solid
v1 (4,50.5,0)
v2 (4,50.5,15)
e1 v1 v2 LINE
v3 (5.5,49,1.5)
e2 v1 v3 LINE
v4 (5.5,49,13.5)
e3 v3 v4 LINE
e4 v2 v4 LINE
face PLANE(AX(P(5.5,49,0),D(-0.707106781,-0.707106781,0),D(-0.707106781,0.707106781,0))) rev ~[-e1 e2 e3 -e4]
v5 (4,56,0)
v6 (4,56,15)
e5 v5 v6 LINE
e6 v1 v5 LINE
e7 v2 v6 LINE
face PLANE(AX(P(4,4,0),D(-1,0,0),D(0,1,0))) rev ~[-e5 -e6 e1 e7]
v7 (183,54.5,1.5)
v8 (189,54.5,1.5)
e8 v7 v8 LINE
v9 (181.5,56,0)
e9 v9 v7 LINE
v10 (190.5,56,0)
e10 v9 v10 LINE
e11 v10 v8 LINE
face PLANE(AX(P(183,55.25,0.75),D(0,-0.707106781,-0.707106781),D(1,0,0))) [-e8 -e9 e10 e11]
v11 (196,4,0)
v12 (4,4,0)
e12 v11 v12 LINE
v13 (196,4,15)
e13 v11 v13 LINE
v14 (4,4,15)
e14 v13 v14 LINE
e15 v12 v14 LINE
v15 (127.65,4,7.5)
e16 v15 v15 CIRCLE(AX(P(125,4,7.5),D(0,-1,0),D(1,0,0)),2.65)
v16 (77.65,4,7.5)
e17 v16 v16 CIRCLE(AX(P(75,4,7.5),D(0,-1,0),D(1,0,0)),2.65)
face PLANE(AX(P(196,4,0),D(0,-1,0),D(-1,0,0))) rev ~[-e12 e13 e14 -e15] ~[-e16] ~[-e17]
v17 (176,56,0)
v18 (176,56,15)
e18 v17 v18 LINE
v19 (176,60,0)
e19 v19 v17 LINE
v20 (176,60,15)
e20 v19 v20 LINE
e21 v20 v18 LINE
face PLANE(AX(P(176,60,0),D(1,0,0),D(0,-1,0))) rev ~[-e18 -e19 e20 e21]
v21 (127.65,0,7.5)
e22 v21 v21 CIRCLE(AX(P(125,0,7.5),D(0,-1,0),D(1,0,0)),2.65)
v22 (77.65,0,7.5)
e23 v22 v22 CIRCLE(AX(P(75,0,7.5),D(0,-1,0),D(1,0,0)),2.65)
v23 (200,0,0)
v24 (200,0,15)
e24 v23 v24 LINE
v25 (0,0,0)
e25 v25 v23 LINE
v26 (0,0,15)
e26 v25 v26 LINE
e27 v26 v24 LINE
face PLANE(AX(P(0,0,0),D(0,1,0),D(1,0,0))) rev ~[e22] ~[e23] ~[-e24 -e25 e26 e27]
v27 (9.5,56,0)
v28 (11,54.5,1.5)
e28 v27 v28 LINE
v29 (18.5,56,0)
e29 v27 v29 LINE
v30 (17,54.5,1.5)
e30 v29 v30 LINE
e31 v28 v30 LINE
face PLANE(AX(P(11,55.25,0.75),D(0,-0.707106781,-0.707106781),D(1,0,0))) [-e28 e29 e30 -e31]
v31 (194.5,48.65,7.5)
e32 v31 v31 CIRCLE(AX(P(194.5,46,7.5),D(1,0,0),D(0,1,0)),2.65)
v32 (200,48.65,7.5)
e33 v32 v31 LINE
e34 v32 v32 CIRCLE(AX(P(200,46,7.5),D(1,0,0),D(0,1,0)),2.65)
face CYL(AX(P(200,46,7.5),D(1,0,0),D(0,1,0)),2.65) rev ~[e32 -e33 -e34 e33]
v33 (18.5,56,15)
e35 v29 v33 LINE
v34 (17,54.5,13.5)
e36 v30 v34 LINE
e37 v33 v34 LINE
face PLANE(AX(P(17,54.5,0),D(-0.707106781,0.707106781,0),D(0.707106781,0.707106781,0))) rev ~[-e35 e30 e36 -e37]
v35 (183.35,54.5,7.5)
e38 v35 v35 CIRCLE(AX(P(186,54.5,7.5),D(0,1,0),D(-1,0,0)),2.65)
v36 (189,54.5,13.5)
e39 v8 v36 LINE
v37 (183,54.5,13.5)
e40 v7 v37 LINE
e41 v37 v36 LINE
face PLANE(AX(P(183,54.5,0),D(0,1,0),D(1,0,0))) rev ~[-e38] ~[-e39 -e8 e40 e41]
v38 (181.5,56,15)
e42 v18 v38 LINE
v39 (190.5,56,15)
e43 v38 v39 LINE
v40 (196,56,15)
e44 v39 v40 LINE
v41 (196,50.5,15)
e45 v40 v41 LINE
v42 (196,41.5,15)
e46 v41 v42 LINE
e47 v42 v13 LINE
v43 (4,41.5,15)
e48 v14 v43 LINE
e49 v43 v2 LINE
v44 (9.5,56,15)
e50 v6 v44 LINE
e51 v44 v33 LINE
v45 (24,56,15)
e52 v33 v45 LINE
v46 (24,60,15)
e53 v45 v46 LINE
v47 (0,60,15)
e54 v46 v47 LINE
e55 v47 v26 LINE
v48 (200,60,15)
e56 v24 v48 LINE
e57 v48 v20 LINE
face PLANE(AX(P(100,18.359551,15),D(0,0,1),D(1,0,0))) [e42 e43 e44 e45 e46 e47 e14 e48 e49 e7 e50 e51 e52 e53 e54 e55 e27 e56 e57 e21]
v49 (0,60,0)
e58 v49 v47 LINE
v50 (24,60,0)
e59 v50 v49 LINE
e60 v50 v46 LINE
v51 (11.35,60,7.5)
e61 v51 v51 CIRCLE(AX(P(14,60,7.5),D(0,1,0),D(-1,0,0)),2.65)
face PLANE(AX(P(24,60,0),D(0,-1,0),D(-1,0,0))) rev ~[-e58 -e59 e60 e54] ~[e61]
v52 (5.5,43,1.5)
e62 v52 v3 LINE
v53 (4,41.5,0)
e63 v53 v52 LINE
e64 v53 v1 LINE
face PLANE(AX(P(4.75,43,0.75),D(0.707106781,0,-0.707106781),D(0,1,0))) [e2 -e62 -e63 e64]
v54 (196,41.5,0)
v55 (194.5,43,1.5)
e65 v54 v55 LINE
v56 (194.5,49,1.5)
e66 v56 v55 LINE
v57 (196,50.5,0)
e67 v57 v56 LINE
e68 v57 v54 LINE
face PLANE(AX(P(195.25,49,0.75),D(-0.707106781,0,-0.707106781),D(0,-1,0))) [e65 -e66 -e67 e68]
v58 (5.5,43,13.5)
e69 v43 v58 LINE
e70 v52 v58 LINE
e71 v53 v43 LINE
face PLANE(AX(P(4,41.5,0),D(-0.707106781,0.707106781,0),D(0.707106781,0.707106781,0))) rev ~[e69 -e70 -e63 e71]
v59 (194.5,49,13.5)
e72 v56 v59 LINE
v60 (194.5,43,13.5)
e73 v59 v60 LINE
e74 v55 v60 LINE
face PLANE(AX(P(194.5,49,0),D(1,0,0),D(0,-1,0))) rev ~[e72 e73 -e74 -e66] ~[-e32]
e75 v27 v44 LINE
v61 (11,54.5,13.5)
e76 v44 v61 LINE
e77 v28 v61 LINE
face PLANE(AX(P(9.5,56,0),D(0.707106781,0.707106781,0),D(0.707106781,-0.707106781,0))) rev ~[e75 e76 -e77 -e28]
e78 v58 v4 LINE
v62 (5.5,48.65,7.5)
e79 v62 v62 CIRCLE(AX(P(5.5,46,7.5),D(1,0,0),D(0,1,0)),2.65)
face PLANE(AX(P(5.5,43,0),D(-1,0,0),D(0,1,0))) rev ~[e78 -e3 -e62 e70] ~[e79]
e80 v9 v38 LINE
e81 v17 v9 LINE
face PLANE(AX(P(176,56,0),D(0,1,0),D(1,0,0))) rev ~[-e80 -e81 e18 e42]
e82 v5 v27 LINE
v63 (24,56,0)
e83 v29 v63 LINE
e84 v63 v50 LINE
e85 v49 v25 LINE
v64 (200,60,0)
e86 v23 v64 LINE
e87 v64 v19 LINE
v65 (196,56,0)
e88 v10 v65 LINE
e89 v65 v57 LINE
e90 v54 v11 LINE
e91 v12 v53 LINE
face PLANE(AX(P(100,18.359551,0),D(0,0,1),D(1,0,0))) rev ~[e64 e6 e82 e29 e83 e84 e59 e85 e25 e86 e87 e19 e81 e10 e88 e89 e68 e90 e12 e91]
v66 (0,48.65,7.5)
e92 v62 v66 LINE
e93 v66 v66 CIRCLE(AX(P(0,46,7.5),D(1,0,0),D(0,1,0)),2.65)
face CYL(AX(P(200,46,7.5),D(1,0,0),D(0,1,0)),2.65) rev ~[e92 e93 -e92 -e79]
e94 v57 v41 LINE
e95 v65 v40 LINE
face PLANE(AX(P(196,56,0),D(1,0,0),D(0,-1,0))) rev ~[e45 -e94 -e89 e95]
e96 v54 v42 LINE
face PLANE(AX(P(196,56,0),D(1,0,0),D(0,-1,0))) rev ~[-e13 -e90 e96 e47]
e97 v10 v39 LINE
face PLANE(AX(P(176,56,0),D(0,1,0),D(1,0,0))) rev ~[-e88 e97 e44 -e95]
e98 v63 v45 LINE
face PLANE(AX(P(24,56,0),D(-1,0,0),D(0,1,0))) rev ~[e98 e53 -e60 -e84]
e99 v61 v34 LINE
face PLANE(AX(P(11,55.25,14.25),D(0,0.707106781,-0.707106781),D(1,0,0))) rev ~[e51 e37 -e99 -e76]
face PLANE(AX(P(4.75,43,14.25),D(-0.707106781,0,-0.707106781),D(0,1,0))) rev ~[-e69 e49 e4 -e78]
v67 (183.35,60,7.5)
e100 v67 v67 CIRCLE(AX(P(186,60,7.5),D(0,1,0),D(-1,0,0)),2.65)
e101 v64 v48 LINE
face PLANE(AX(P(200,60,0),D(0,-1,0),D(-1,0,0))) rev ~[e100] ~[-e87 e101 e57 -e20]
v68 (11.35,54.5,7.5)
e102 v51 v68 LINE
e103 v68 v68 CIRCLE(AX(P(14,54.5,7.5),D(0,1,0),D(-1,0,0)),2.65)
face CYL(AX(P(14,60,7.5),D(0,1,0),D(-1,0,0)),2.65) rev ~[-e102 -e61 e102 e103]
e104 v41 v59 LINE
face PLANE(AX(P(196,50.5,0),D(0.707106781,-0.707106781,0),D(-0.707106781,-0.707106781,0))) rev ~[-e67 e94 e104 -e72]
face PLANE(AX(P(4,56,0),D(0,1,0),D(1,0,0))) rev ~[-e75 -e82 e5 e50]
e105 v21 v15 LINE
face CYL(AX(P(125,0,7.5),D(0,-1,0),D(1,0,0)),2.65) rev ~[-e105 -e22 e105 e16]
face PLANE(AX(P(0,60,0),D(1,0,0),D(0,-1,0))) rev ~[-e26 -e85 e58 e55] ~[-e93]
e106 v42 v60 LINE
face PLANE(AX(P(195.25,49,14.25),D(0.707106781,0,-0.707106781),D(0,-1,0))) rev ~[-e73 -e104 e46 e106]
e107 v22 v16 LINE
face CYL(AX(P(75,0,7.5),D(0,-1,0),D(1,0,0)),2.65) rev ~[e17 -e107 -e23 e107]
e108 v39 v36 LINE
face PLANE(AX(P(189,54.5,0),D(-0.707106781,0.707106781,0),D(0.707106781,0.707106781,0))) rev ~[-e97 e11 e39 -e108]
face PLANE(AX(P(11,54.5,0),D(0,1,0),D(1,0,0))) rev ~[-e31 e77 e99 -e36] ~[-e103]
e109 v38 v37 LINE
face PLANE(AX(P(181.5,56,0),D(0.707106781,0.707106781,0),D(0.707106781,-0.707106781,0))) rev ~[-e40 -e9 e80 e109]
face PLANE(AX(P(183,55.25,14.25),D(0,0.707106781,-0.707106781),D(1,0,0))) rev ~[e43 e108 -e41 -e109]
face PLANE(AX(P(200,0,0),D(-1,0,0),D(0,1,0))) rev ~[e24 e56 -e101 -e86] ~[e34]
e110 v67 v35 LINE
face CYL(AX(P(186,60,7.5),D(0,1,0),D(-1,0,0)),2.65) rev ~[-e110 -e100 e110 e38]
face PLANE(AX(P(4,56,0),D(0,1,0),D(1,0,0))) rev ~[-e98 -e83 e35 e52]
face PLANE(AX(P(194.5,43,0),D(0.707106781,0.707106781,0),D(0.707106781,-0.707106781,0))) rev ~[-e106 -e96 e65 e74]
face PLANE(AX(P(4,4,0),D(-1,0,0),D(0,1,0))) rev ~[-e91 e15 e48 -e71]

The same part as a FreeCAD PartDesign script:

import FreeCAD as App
import Part
import Sketcher
Q = App.Units.Quantity


def edges_at(feature, points):
    """Names of the edges that pass closest to the given points."""
    edges = feature.Shape.Edges
    near = lambda p: min(range(len(edges)), key=lambda i: edges[i].distToShape(Part.Vertex(*p))[0])
    return sorted({f"Edge{near(p) + 1}" for p in points})


def add_polygon(sketch, points):
    """Adds a closed chain of lines whose ends are joined by coincident constraints."""
    first, n = sketch.GeometryCount, len(points)
    for a, b in zip(points, points[1:] + points[:1]):
        sketch.addGeometry(Part.LineSegment(App.Vector(*a, 0), App.Vector(*b, 0)), False)
    for i in range(n):
        sketch.addConstraint(Sketcher.Constraint("Coincident", first + i, 2, first + (i + 1) % n, 1))

doc = App.newDocument("Part")
body = doc.addObject("PartDesign::Body", "Body")

# Sketch on XY plane
sketch1 = body.newObject("Sketcher::SketchObject", "Sketch")
sketch1.AttachmentSupport = (doc.getObject("XY_Plane"), [""])
sketch1.MapMode = "FlatFace"
add_polygon(sketch1, [(0, 60), (0, 0), (200, 0), (200, 60), (176, 60), (176, 56), (196, 56), (196, 4), (4, 4), (4, 56), (24, 56), (24, 60)])  # lines 0-11
sketch1.addConstraint([
    Sketcher.Constraint("Vertical", 0),
    Sketcher.Constraint("Horizontal", 1),
    Sketcher.Constraint("Vertical", 2),
    Sketcher.Constraint("Horizontal", 3),
    Sketcher.Constraint("Vertical", 4),
    Sketcher.Constraint("Horizontal", 5),
    Sketcher.Constraint("Vertical", 6),
    Sketcher.Constraint("Horizontal", 7),
    Sketcher.Constraint("Vertical", 8),
    Sketcher.Constraint("Horizontal", 9),
    Sketcher.Constraint("Vertical", 10),
    Sketcher.Constraint("Horizontal", 11),
    Sketcher.Constraint("Coincident", 0, 2, -1, 1),
    Sketcher.Constraint("Horizontal", 5, 2, 8, 2),
    Sketcher.Constraint("Horizontal", 3, 2, 10, 2),
    Sketcher.Constraint("Equal", 5, 9),
    Sketcher.Constraint("Equal", 3, 11),
    Sketcher.Constraint("DistanceX", 1, 1, 1, 2, Q("200 mm")),
    Sketcher.Constraint("DistanceX", 3, 2, 3, 1, Q("24 mm")),
    Sketcher.Constraint("DistanceX", 5, 1, 5, 2, Q("20 mm")),
    Sketcher.Constraint("DistanceY", 0, 2, 0, 1, Q("60 mm")),
    Sketcher.Constraint("DistanceY", 4, 2, 4, 1, Q("4 mm")),
    Sketcher.Constraint("DistanceY", 6, 2, 6, 1, Q("52 mm")),
])
pad1 = body.newObject("PartDesign::Pad", "Pad")
pad1.Profile = sketch1
pad1.Length = 15

# Sketch on XY plane
sketch2 = body.newObject("Sketcher::SketchObject", "Sketch001")
sketch2.AttachmentSupport = (doc.getObject("XY_Plane"), [""])
sketch2.MapMode = "FlatFace"
add_polygon(sketch2, [(17, 54.5), (18.5, 56), (9.5, 56), (11, 54.5)])  # lines 0-3
add_polygon(sketch2, [(5.5, 49), (4, 50.5), (4, 41.5), (5.5, 43)])  # lines 4-7
add_polygon(sketch2, [(196, 41.5), (196, 50.5), (194.5, 49), (194.5, 43)])  # lines 8-11
add_polygon(sketch2, [(189, 54.5), (190.5, 56), (181.5, 56), (183, 54.5)])  # lines 12-15
sketch2.addConstraint([
    Sketcher.Constraint("Horizontal", 1),
    Sketcher.Constraint("Horizontal", 3),
    Sketcher.Constraint("Vertical", 5),
    Sketcher.Constraint("Vertical", 7),
    Sketcher.Constraint("Vertical", 8),
    Sketcher.Constraint("Vertical", 10),
    Sketcher.Constraint("Horizontal", 13),
    Sketcher.Constraint("Horizontal", 15),
    Sketcher.Constraint("Perpendicular", 0, 2),
    Sketcher.Constraint("Parallel", 2, 4),
    Sketcher.Constraint("Perpendicular", 4, 6),
    Sketcher.Constraint("Parallel", 6, 9),
    Sketcher.Constraint("Perpendicular", 9, 11),
    Sketcher.Constraint("Perpendicular", 11, 12),
    Sketcher.Constraint("Perpendicular", 12, 14),
    Sketcher.Constraint("Horizontal", 4, 2, 8, 2),
    Sketcher.Constraint("Horizontal", 7, 2, 9, 2),
    Sketcher.Constraint("Horizontal", 6, 2, 10, 2),
    Sketcher.Constraint("Horizontal", 5, 2, 11, 2),
    Sketcher.Constraint("Horizontal", 1, 2, 12, 2),
    Sketcher.Constraint("Horizontal", 3, 2, 14, 2),
    Sketcher.Constraint("Equal", 1, 13),
    Sketcher.Constraint("Equal", 13, 5),
    Sketcher.Constraint("Equal", 15, 7),
    Sketcher.Constraint("DistanceX", 1, 2, 1, 1, Q("9 mm")),
    Sketcher.Constraint("DistanceX", 3, 1, 3, 2, Q("6 mm")),
    Sketcher.Constraint("DistanceY", -1, 1, 0, 2, Q("56 mm")),
    Sketcher.Constraint("DistanceX", -1, 1, 2, 2, Q("11 mm")),
    Sketcher.Constraint("DistanceX", -1, 1, 4, 2, Q("4 mm")),
    Sketcher.Constraint("DistanceY", -1, 1, 6, 2, Q("43 mm")),
    Sketcher.Constraint("DistanceX", -1, 1, 8, 2, Q("196 mm")),
    Sketcher.Constraint("DistanceX", -1, 1, 14, 2, Q("183 mm")),
])
pad2 = body.newObject("PartDesign::Pad", "Pad001")
pad2.Profile = sketch2
pad2.Length = 15
doc.recompute()

chamfer = body.newObject("PartDesign::Chamfer", "Chamfer")
chamfer.Base = (pad2, edges_at(pad2, [
    (5.5, 46, 15),
    (5.5, 46, 0),
    (14, 54.5, 0),
    (14, 54.5, 15),
    (186, 54.5, 15),
    (194.5, 46, 15),
    (194.5, 46, 0),
    (186, 54.5, 0),
]))
chamfer.Size = 1.5

# Sketch on XZ plane
sketch3 = body.newObject("Sketcher::SketchObject", "Sketch002")
sketch3.AttachmentSupport = (doc.getObject("XZ_Plane"), [""])
sketch3.MapMode = "FlatFace"
sketch3.addGeometry([
    Part.Circle(App.Vector(75, 7.5, 0), App.Vector(0, 0, 1), 2.65),
    Part.Circle(App.Vector(125, 7.5, 0), App.Vector(0, 0, 1), 2.65),
], False)
sketch3.addConstraint([
    Sketcher.Constraint("Equal", 0, 1),
    Sketcher.Constraint("Horizontal", 0, 3, 1, 3),
    Sketcher.Constraint("Diameter", 0, Q("5.3 mm")),
    Sketcher.Constraint("DistanceX", -1, 1, 0, 3, Q("75 mm")),
    Sketcher.Constraint("DistanceX", -1, 1, 1, 3, Q("125 mm")),
    Sketcher.Constraint("DistanceY", -1, 1, 0, 3, Q("7.5 mm")),
])
pocket1 = body.newObject("PartDesign::Pocket", "Pocket")
pocket1.Profile = sketch3
pocket1.Type = "ThroughAll"

# Sketch on YZ plane
sketch4 = body.newObject("Sketcher::SketchObject", "Sketch003")
sketch4.AttachmentSupport = (doc.getObject("YZ_Plane"), [""])
sketch4.MapMode = "FlatFace"
sketch4.AttachmentOffset = App.Placement(App.Vector(0, 0, 200), App.Rotation())
sketch4.addGeometry(Part.Circle(App.Vector(46, 7.5, 0), App.Vector(0, 0, 1), 2.65), False)
sketch4.addConstraint([
    Sketcher.Constraint("Diameter", 0, Q("5.3 mm")),
    Sketcher.Constraint("DistanceX", -1, 1, 0, 3, Q("46 mm")),
    Sketcher.Constraint("DistanceY", -1, 1, 0, 3, Q("7.5 mm")),
])
pocket2 = body.newObject("PartDesign::Pocket", "Pocket001")
pocket2.Profile = sketch4
pocket2.Type = "ThroughAll"

# Sketch on XZ plane
sketch5 = body.newObject("Sketcher::SketchObject", "Sketch004")
sketch5.AttachmentSupport = (doc.getObject("XZ_Plane"), [""])
sketch5.MapMode = "FlatFace"
sketch5.AttachmentOffset = App.Placement(App.Vector(0, 0, -60), App.Rotation())
sketch5.addGeometry([
    Part.Circle(App.Vector(186, 7.5, 0), App.Vector(0, 0, 1), 2.65),
    Part.Circle(App.Vector(14, 7.5, 0), App.Vector(0, 0, 1), 2.65),
], False)
sketch5.addConstraint([
    Sketcher.Constraint("Equal", 0, 1),
    Sketcher.Constraint("Horizontal", 0, 3, 1, 3),
    Sketcher.Constraint("Diameter", 0, Q("5.3 mm")),
    Sketcher.Constraint("DistanceX", -1, 1, 0, 3, Q("186 mm")),
    Sketcher.Constraint("DistanceX", -1, 1, 1, 3, Q("14 mm")),
    Sketcher.Constraint("DistanceY", -1, 1, 0, 3, Q("7.5 mm")),
])
pocket3 = body.newObject("PartDesign::Pocket", "Pocket002")
pocket3.Profile = sketch5
pocket3.Length = 5.5
pocket3.Reversed = True

doc.recompute()
